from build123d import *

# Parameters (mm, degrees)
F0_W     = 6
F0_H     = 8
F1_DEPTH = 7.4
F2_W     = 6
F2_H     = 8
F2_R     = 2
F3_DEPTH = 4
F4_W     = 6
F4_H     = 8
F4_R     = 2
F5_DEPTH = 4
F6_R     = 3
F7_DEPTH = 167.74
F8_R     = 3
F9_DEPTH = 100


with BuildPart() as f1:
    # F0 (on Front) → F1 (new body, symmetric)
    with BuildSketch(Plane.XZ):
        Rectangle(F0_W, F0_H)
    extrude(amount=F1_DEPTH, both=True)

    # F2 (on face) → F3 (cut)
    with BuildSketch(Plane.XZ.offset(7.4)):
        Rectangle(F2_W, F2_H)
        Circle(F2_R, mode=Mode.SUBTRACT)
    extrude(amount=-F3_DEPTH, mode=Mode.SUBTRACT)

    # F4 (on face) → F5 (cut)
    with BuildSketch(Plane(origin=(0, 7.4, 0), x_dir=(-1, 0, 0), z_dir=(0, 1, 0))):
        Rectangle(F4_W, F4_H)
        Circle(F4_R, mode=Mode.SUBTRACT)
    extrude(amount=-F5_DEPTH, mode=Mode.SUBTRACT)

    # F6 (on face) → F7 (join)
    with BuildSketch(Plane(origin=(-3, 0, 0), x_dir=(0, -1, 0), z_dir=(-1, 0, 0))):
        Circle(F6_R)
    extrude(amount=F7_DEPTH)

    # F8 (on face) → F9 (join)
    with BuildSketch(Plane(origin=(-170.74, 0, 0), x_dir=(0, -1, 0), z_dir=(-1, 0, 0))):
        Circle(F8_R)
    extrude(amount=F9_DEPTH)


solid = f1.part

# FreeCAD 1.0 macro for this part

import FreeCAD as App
import Part
import Sketcher

V = App.Vector


def add_polygon(sketch, points):
    """Adds a closed chain of lines whose ends are joined by coincident constraints."""
    first, n = sketch.GeometryCount, len(points)
    for a, b in zip(points, points[1:] + points[:1]):
        sketch.addGeometry(Part.LineSegment(App.Vector(*a, 0), App.Vector(*b, 0)), False)
    for i in range(n):
        sketch.addConstraint(Sketcher.Constraint("Coincident", first + i, 2, first + (i + 1) % n, 1))

doc = App.newDocument("Part")
body = doc.addObject("PartDesign::Body", "Body")

# Sketch on XZ plane
sketch1 = body.newObject("Sketcher::SketchObject", "Sketch")
sketch1.AttachmentSupport = (doc.getObject("XZ_Plane"), [""])
sketch1.MapMode = "FlatFace"
add_polygon(sketch1, [(-3, 4), (-3, -4), (3, -4), (3, 4)])  # lines 0-3
sketch1.addConstraint(Sketcher.Constraint("Vertical", 0))
sketch1.addConstraint(Sketcher.Constraint("Horizontal", 1))
sketch1.addConstraint(Sketcher.Constraint("Vertical", 2))
sketch1.addConstraint(Sketcher.Constraint("Horizontal", 3))
sketch1.addConstraint(Sketcher.Constraint("Symmetric", 0, 2, 2, 2, -1, 1))
sketch1.addConstraint(Sketcher.Constraint("DistanceX", 1, 1, 1, 2, 6.0))
sketch1.addConstraint(Sketcher.Constraint("DistanceY", 0, 2, 0, 1, 8.0))
pad1 = body.newObject("PartDesign::Pad", "Pad")
pad1.Profile = sketch1
pad1.Length = 14.8
pad1.Midplane = True

# Sketch on XZ plane
sketch2 = body.newObject("Sketcher::SketchObject", "Sketch001")
sketch2.AttachmentSupport = (doc.getObject("XZ_Plane"), [""])
sketch2.MapMode = "FlatFace"
sketch2.AttachmentOffset = App.Placement(V(0, 0, 7.4), App.Rotation())
add_polygon(sketch2, [(-3, 4), (-3, -4), (3, -4), (3, 4)])  # lines 0-3
sketch2.addGeometry(Part.Circle(V(0, 0, 0), V(0, 0, 1), 2), False)  # 4
sketch2.addConstraint(Sketcher.Constraint("Vertical", 0))
sketch2.addConstraint(Sketcher.Constraint("Horizontal", 1))
sketch2.addConstraint(Sketcher.Constraint("Vertical", 2))
sketch2.addConstraint(Sketcher.Constraint("Horizontal", 3))
sketch2.addConstraint(Sketcher.Constraint("Coincident", 4, 3, -1, 1))
sketch2.addConstraint(Sketcher.Constraint("Symmetric", 0, 2, 2, 2, -1, 1))
sketch2.addConstraint(Sketcher.Constraint("Diameter", 4, 4.0))
sketch2.addConstraint(Sketcher.Constraint("DistanceX", 1, 1, 1, 2, 6.0))
sketch2.addConstraint(Sketcher.Constraint("DistanceY", 0, 2, 0, 1, 8.0))
pocket1 = body.newObject("PartDesign::Pocket", "Pocket")
pocket1.Profile = sketch2
pocket1.Length = 4

# Sketch on XZ plane
sketch3 = body.newObject("Sketcher::SketchObject", "Sketch002")
sketch3.AttachmentSupport = (doc.getObject("XZ_Plane"), [""])
sketch3.MapMode = "FlatFace"
sketch3.AttachmentOffset = App.Placement(V(0, 0, -7.4), App.Rotation())
add_polygon(sketch3, [(3, 4), (3, -4), (-3, -4), (-3, 4)])  # lines 0-3
sketch3.addGeometry(Part.Circle(V(0, 0, 0), V(0, 0, 1), 2), False)  # 4
sketch3.addConstraint(Sketcher.Constraint("Vertical", 0))
sketch3.addConstraint(Sketcher.Constraint("Horizontal", 1))
sketch3.addConstraint(Sketcher.Constraint("Vertical", 2))
sketch3.addConstraint(Sketcher.Constraint("Horizontal", 3))
sketch3.addConstraint(Sketcher.Constraint("Coincident", 4, 3, -1, 1))
sketch3.addConstraint(Sketcher.Constraint("Symmetric", 0, 2, 2, 2, -1, 1))
sketch3.addConstraint(Sketcher.Constraint("Diameter", 4, 4.0))
sketch3.addConstraint(Sketcher.Constraint("DistanceX", 1, 2, 1, 1, 6.0))
sketch3.addConstraint(Sketcher.Constraint("DistanceY", 0, 2, 0, 1, 8.0))
pocket2 = body.newObject("PartDesign::Pocket", "Pocket001")
pocket2.Profile = sketch3
pocket2.Length = 4
pocket2.Reversed = True

# Sketch on YZ plane
sketch4 = body.newObject("Sketcher::SketchObject", "Sketch003")
sketch4.AttachmentSupport = (doc.getObject("YZ_Plane"), [""])
sketch4.MapMode = "FlatFace"
sketch4.AttachmentOffset = App.Placement(V(0, 0, -3), App.Rotation())
sketch4.addGeometry(Part.Circle(V(0, 0, 0), V(0, 0, 1), 3), False)
sketch4.addConstraint(Sketcher.Constraint("Coincident", 0, 3, -1, 1))
sketch4.addConstraint(Sketcher.Constraint("Diameter", 0, 6.0))
pad2 = body.newObject("PartDesign::Pad", "Pad001")
pad2.Profile = sketch4
pad2.Length = 167.74
pad2.Reversed = True

# Sketch on YZ plane
sketch5 = body.newObject("Sketcher::SketchObject", "Sketch004")
sketch5.AttachmentSupport = (doc.getObject("YZ_Plane"), [""])
sketch5.MapMode = "FlatFace"
sketch5.AttachmentOffset = App.Placement(V(0, 0, -170.74), App.Rotation())
sketch5.addGeometry(Part.Circle(V(0, 0, 0), V(0, 0, 1), 3), False)
sketch5.addConstraint(Sketcher.Constraint("Coincident", 0, 3, -1, 1))
sketch5.addConstraint(Sketcher.Constraint("Diameter", 0, 6.0))
pad3 = body.newObject("PartDesign::Pad", "Pad002")
pad3.Profile = sketch5
pad3.Length = 100
pad3.Reversed = True

doc.recompute()
